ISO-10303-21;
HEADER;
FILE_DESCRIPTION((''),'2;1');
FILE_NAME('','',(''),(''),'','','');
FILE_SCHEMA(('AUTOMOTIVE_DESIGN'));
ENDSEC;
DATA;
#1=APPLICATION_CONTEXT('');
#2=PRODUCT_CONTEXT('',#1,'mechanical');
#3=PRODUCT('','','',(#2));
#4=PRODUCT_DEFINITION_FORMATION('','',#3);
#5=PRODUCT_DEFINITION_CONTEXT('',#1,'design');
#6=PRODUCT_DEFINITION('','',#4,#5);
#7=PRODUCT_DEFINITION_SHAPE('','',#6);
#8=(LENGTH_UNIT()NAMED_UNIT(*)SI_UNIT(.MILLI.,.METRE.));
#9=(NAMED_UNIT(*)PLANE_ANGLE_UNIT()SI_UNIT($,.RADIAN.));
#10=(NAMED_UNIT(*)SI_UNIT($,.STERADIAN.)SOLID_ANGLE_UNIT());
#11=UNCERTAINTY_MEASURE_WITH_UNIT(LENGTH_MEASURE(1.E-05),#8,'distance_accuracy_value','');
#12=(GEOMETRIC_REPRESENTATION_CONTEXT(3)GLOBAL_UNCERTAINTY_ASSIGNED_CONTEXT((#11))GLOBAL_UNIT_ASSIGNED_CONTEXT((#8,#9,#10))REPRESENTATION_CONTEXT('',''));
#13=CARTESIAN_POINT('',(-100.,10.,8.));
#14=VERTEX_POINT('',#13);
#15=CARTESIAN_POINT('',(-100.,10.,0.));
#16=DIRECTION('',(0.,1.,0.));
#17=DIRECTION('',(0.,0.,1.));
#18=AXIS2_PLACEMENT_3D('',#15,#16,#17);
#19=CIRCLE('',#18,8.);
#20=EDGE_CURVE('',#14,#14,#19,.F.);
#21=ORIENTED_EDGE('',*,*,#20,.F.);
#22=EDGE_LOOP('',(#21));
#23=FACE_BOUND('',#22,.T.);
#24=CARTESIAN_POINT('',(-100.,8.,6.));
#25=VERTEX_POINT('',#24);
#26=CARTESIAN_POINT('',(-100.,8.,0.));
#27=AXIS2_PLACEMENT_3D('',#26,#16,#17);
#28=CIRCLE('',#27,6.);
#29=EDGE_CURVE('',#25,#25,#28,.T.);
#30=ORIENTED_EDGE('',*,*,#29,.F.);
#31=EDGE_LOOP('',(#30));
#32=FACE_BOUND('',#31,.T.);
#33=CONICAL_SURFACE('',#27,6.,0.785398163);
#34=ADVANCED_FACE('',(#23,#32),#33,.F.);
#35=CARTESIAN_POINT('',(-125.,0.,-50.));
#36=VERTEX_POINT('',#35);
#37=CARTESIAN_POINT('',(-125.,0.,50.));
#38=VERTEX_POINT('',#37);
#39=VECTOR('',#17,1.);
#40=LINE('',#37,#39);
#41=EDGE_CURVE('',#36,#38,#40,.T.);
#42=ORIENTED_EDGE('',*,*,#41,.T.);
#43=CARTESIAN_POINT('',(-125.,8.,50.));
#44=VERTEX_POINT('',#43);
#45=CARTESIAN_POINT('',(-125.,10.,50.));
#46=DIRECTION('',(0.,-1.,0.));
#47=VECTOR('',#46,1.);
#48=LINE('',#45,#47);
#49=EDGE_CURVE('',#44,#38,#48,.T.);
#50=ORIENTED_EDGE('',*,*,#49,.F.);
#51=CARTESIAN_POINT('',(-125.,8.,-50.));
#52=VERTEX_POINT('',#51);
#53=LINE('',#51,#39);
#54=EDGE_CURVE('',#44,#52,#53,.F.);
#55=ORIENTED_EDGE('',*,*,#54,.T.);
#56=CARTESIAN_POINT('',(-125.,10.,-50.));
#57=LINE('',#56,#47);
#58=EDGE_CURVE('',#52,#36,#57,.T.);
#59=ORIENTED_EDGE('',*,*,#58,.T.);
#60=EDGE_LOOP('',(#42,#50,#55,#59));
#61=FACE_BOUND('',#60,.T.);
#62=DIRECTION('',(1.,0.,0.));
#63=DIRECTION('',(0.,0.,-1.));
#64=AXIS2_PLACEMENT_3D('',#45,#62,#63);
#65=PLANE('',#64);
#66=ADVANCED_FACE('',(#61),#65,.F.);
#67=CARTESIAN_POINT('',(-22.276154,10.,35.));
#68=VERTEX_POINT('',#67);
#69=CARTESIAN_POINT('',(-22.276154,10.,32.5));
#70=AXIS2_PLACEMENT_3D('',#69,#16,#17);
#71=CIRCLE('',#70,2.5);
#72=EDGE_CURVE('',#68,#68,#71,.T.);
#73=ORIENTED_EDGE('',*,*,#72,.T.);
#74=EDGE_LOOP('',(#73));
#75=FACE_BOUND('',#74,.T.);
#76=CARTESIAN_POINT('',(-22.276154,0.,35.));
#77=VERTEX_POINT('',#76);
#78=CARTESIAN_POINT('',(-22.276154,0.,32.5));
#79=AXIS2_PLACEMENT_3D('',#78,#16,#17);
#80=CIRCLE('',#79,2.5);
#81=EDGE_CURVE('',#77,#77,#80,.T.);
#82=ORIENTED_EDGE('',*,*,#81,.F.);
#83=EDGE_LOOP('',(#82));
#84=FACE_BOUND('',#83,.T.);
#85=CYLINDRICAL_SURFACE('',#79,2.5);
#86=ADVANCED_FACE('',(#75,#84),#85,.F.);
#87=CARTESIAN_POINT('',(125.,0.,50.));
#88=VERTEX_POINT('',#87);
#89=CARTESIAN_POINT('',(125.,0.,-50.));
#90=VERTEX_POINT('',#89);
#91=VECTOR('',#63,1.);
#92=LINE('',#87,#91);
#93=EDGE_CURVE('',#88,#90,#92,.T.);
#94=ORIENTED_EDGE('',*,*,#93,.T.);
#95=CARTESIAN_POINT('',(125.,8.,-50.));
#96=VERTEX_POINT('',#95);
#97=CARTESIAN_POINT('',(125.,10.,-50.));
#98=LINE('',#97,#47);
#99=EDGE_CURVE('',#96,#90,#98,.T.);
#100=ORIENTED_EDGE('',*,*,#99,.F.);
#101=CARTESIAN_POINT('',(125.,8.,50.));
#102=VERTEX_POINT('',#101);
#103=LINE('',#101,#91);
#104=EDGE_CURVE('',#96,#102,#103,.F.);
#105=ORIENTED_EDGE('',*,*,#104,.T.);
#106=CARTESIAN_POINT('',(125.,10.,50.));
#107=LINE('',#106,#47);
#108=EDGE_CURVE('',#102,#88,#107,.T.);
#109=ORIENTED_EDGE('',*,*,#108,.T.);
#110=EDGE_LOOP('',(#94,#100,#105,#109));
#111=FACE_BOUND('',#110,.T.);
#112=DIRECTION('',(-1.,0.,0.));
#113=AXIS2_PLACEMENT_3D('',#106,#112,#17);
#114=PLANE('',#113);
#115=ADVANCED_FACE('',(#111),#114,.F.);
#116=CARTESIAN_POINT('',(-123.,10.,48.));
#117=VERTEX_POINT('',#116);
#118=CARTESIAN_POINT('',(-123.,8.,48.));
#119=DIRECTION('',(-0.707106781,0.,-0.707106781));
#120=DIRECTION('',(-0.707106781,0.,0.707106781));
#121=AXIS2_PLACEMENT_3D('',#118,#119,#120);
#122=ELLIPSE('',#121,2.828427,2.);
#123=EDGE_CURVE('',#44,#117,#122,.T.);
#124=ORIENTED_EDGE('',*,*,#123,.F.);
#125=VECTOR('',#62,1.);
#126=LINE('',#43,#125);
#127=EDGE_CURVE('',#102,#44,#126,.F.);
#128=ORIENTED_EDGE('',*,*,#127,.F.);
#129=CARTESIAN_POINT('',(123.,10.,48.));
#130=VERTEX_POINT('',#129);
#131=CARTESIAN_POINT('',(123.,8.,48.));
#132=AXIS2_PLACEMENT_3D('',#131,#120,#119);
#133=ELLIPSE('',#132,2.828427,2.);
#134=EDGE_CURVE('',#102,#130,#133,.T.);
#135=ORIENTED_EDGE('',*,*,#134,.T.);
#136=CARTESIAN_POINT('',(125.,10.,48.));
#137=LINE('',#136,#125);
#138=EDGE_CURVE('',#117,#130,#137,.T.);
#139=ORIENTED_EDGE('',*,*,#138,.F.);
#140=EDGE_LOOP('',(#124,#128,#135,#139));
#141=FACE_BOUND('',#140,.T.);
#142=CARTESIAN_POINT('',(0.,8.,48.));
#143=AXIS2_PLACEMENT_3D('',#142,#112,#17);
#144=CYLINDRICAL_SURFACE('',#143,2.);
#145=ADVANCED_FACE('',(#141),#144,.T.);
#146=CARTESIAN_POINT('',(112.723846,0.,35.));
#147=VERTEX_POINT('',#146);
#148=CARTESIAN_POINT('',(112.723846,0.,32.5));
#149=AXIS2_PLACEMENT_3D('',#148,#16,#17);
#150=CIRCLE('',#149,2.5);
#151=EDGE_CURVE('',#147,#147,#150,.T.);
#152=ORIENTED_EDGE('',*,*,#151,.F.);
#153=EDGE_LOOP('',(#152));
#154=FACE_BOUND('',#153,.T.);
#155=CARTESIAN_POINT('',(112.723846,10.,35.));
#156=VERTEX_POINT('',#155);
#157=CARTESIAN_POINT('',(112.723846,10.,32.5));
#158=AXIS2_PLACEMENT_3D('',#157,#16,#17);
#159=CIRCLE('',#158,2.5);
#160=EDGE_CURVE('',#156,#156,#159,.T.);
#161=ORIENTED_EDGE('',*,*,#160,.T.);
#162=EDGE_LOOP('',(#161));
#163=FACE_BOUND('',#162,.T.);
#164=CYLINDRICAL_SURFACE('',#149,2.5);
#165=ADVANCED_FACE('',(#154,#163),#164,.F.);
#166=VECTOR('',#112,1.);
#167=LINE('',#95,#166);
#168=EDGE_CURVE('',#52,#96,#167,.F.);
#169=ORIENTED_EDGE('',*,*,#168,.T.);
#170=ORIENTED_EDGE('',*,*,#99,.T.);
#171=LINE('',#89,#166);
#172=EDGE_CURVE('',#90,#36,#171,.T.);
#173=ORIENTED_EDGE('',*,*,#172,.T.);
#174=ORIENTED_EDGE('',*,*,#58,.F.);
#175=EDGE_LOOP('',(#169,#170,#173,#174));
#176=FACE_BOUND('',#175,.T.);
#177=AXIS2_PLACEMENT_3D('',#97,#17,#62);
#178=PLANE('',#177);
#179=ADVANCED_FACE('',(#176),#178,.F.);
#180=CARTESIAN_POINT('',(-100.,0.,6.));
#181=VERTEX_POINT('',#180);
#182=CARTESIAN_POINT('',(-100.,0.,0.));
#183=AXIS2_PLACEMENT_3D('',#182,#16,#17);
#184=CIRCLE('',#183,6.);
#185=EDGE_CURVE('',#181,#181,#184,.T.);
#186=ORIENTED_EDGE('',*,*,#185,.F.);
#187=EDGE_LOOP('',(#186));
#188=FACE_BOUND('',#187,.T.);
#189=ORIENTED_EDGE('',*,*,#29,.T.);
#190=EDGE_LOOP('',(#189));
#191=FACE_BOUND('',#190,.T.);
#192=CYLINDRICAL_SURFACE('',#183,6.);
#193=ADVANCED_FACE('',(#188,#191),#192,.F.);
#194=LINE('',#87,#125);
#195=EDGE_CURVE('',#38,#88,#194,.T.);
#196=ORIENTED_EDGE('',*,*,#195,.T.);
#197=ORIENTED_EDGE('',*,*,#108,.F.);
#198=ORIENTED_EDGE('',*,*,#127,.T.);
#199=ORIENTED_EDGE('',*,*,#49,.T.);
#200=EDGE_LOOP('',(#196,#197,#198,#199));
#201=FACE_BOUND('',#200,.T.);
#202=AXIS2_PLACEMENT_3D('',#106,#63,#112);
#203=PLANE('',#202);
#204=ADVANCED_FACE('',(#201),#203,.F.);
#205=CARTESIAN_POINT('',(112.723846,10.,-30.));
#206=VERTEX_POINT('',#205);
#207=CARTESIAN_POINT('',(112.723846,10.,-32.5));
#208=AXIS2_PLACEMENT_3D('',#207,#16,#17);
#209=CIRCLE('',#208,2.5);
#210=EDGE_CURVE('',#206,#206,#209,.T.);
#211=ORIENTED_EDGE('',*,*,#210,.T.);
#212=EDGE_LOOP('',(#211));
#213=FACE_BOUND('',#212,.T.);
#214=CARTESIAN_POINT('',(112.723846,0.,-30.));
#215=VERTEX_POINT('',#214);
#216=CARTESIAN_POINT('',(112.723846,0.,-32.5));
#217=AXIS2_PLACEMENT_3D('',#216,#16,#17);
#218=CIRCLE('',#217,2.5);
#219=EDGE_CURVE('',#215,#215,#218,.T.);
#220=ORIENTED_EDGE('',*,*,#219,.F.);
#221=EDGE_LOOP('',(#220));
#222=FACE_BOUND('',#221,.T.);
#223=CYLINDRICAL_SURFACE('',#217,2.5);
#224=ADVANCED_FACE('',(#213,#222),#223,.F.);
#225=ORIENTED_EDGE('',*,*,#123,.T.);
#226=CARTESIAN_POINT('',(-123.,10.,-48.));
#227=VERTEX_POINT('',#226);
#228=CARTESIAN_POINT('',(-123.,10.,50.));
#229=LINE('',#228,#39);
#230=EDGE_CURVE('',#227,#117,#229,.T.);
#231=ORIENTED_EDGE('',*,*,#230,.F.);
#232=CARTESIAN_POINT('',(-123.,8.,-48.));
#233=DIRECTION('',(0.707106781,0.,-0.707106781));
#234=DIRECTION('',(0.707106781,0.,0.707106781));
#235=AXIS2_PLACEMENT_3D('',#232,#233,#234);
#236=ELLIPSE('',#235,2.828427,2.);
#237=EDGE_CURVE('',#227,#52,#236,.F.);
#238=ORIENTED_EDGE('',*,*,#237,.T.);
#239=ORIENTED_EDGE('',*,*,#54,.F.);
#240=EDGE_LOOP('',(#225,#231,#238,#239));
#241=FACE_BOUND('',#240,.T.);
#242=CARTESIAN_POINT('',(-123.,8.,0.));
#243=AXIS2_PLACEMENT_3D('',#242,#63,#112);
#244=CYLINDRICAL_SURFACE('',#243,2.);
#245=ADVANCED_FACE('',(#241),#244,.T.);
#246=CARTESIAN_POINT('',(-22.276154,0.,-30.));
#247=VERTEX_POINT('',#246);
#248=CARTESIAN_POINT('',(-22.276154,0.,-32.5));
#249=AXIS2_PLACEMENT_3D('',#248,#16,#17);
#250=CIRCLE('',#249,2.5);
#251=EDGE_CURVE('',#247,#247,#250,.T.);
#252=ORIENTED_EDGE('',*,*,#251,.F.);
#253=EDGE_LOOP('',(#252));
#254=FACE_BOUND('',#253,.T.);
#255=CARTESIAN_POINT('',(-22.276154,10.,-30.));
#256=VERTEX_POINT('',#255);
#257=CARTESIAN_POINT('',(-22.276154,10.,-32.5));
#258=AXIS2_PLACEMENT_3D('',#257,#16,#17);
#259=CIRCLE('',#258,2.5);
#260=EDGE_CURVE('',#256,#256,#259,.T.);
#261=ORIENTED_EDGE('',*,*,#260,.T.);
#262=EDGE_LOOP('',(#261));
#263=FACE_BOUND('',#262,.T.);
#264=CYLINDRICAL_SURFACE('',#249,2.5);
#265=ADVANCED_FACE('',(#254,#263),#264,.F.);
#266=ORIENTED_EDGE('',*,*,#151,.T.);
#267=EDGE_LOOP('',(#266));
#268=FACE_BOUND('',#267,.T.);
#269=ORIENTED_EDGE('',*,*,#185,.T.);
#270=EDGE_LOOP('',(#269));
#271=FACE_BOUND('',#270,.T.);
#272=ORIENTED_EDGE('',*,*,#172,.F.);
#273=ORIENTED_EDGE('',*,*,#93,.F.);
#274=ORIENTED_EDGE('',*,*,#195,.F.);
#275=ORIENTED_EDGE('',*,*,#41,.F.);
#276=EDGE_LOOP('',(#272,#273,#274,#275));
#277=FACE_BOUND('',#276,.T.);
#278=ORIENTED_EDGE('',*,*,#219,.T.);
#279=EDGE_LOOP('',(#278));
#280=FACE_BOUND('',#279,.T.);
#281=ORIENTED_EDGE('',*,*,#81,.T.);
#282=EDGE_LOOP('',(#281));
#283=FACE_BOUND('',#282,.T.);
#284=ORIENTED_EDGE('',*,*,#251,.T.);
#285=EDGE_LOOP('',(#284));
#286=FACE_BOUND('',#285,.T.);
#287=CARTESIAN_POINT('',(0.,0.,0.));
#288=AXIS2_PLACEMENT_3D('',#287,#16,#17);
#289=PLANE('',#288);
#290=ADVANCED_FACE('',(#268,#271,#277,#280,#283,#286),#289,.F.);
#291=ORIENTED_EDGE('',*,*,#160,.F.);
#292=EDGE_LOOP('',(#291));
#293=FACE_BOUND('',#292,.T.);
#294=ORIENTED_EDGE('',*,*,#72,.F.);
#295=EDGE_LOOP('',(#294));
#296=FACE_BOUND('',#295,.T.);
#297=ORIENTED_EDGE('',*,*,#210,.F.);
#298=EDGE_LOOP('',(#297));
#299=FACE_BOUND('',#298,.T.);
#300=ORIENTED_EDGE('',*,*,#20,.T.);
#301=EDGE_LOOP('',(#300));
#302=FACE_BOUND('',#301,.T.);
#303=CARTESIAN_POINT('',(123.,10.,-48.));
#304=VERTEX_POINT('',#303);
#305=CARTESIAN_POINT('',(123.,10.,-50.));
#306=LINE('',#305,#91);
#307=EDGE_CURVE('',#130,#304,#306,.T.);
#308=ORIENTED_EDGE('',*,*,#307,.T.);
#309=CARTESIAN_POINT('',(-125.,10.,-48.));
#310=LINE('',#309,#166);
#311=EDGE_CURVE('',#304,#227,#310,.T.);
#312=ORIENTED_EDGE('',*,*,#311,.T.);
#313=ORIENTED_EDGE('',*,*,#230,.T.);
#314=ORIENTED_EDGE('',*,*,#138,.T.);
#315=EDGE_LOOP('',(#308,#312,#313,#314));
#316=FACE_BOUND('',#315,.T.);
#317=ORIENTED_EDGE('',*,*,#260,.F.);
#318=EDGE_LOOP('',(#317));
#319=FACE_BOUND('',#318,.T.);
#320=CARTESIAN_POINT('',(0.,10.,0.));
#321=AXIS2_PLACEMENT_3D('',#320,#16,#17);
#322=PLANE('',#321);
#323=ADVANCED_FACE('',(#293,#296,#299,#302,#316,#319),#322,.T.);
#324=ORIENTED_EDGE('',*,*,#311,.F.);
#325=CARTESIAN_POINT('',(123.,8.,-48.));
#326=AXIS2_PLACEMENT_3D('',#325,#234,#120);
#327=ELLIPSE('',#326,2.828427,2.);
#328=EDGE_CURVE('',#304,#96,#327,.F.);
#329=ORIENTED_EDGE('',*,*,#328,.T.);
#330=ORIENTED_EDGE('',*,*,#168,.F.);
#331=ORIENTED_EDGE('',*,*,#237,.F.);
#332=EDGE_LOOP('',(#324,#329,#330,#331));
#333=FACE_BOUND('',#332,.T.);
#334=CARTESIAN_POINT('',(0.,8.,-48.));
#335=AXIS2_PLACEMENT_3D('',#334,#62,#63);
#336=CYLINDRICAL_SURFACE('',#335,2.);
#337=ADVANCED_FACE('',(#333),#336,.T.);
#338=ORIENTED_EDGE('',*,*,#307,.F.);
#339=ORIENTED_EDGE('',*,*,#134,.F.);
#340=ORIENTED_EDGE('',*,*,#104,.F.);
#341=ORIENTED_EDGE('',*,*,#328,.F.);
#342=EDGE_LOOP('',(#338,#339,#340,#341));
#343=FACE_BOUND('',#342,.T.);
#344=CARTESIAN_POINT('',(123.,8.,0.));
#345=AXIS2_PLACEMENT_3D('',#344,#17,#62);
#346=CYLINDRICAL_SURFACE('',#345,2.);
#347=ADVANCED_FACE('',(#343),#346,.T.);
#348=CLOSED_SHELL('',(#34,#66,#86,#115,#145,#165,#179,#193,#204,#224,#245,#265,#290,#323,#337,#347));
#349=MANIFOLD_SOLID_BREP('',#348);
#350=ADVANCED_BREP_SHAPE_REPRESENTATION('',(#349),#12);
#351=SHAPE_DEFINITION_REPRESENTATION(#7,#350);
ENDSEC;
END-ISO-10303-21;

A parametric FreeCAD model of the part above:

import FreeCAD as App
import Part
import Sketcher
from FreeCAD import Vector
Q = App.Units.Quantity


def edges_at(feature, points):
    """Names of the edges that pass closest to the given points."""
    edges = feature.Shape.Edges
    near = lambda p: min(range(len(edges)), key=lambda i: edges[i].distToShape(Part.Vertex(*p))[0])
    return sorted({f"Edge{near(p) + 1}" for p in points})


def add_polygon(sketch, points):
    """Adds a closed chain of lines whose ends are joined by coincident constraints."""
    first, n = sketch.GeometryCount, len(points)
    for a, b in zip(points, points[1:] + points[:1]):
        sketch.addGeometry(Part.LineSegment(App.Vector(*a, 0), App.Vector(*b, 0)), False)
    for i in range(n):
        sketch.addConstraint(Sketcher.Constraint("Coincident", first + i, 2, first + (i + 1) % n, 1))

doc = App.newDocument("Part")
body = doc.addObject("PartDesign::Body", "Body")

# Sketch on XZ plane
sketch1 = doc.addObject("Sketcher::SketchObject", "Sketch")
body.addObject(sketch1)
sketch1.AttachmentSupport = (doc.XZ_Plane, [""])
sketch1.MapMode = "FlatFace"
add_polygon(sketch1, [(-125, -50), (-125, 50), (125, 50), (125, -50)])  # lines 0-3
sketch1.addConstraint([
    Sketcher.Constraint("Vertical", 0),
    Sketcher.Constraint("Horizontal", 1),
    Sketcher.Constraint("Vertical", 2),
    Sketcher.Constraint("Horizontal", 3),
    Sketcher.Constraint("Symmetric", 0, 2, 2, 2, -1, 1),
    Sketcher.Constraint("DistanceX", 1, 1, 1, 2, Q("250 mm")),
    Sketcher.Constraint("DistanceY", 0, 1, 0, 2, Q("100 mm")),
])
pad1 = doc.addObject("PartDesign::Pad", "Pad")
body.addObject(pad1)
pad1.Profile = sketch1
pad1.Length = 10
pad1.Reversed = True
doc.recompute()

fillet = doc.addObject("PartDesign::Fillet", "Fillet")
body.addObject(fillet)
fillet.Base = (pad1, edges_at(pad1, [
    (125, 10, 0),
    (0, 10, -50),
    (-125, 10, 0),
    (0, 10, 50),
]))
fillet.Radius = 2

# Sketch on XZ plane
sketch2 = doc.addObject("Sketcher::SketchObject", "Sketch001")
body.addObject(sketch2)
sketch2.AttachmentSupport = (doc.XZ_Plane, [""])
sketch2.MapMode = "FlatFace"
sketch2.AttachmentOffset = App.Placement(Vector(0, 0, -10), App.Rotation())
sketch2.addGeometry(Part.Circle(Vector(-100, 0, 0), Vector(0, 0, 1), 6), False)
sketch2.addConstraint([
    Sketcher.Constraint("PointOnObject", 0, 3, -1),
    Sketcher.Constraint("Diameter", 0, Q("12 mm")),
    Sketcher.Constraint("DistanceX", 0, 3, -1, 1, Q("100 mm")),
])
pocket1 = doc.addObject("PartDesign::Pocket", "Pocket")
body.addObject(pocket1)
pocket1.Profile = sketch2
pocket1.Type = "ThroughAll"
pocket1.Reversed = True
doc.recompute()

chamfer = doc.addObject("PartDesign::Chamfer", "Chamfer")
body.addObject(chamfer)
chamfer.Base = (pocket1, edges_at(pocket1, [(-106, 10, 0)]))
chamfer.Size = 2

# Sketch on XZ plane
sketch3 = doc.addObject("Sketcher::SketchObject", "Sketch002")
body.addObject(sketch3)
sketch3.AttachmentSupport = (doc.XZ_Plane, [""])
sketch3.MapMode = "FlatFace"
sketch3.AttachmentOffset = App.Placement(Vector(0, 0, -10), App.Rotation())
sketch3.addGeometry([
    Part.Circle(Vector(112.7, -32.5, 0), Vector(0, 0, 1), 2.5),
    Part.Circle(Vector(112.7, 32.5, 0), Vector(0, 0, 1), 2.5),
    Part.Circle(Vector(-22.3, -32.5, 0), Vector(0, 0, 1), 2.5),
    Part.Circle(Vector(-22.3, 32.5, 0), Vector(0, 0, 1), 2.5),
], False)
sketch3.addConstraint([
    Sketcher.Constraint("Equal", 0, 1),
    Sketcher.Constraint("Equal", 1, 2),
    Sketcher.Constraint("Equal", 2, 3),
    Sketcher.Constraint("Symmetric", 0, 3, 1, 3, -1),
    Sketcher.Constraint("Symmetric", 2, 3, 3, 3, -1),
    Sketcher.Constraint("Horizontal", 0, 3, 2, 3),
    Sketcher.Constraint("Diameter", 0, Q("5 mm")),
    Sketcher.Constraint("DistanceY", 0, 3, 1, 3, Q("65 mm")),
    Sketcher.Constraint("DistanceX", 2, 3, 0, 3, Q("135 mm")),
    Sketcher.Constraint("DistanceX", -1, 1, 0, 3, Q("112.723846 mm")),
])
pocket2 = doc.addObject("PartDesign::Pocket", "Pocket001")
body.addObject(pocket2)
pocket2.Profile = sketch3
pocket2.Type = "ThroughAll"
pocket2.Reversed = True

doc.recompute()
